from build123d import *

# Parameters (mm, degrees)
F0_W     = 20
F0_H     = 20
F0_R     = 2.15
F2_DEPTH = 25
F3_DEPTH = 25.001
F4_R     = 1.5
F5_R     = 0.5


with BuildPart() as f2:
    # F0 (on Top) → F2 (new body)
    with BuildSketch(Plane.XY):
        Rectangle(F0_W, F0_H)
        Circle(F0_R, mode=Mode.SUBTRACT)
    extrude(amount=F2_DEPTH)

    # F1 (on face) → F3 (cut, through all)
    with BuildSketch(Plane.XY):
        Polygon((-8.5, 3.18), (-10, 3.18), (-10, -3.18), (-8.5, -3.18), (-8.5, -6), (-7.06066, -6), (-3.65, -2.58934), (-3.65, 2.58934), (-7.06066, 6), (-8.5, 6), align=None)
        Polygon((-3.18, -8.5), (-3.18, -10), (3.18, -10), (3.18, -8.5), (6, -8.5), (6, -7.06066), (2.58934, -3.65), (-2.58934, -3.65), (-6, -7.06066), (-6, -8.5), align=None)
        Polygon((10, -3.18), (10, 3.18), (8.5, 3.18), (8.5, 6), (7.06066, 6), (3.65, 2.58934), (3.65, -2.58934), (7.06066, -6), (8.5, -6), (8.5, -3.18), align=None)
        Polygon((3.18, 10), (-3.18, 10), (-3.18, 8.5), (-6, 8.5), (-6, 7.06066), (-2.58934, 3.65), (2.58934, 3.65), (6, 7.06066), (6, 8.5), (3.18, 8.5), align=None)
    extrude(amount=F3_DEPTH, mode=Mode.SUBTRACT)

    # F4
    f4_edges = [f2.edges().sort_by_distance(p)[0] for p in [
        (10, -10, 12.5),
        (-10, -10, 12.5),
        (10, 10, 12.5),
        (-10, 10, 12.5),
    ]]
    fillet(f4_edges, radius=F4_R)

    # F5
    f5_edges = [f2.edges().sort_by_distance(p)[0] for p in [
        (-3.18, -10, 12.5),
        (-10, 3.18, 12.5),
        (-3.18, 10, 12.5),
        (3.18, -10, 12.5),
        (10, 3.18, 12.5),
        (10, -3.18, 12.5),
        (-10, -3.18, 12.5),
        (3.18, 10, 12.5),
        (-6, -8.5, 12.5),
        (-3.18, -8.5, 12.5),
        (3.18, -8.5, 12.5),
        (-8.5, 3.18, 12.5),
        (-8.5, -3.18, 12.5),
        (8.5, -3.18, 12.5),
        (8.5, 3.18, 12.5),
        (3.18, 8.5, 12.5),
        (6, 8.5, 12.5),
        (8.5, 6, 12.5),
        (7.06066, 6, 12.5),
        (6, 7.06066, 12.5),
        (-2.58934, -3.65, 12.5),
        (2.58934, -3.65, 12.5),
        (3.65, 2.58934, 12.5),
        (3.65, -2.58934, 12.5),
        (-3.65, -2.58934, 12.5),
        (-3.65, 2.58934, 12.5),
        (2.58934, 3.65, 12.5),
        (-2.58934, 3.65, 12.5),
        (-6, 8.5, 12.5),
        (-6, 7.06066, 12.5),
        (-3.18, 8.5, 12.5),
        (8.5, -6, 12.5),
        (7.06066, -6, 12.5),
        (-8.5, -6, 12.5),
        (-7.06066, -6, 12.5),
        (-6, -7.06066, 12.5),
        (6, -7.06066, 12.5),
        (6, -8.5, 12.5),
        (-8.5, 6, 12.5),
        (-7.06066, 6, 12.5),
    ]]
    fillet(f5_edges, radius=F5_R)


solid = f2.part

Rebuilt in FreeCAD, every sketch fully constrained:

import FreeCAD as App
import Part
import Sketcher
from FreeCAD import Vector


def edges_at(feature, points):
    """Names of the edges that pass closest to the given points."""
    edges = feature.Shape.Edges
    near = lambda p: min(range(len(edges)), key=lambda i: edges[i].distToShape(Part.Vertex(*p))[0])
    return sorted({f"Edge{near(p) + 1}" for p in points})


def add_polygon(sketch, points):
    """Adds a closed chain of lines whose ends are joined by coincident constraints."""
    first, n = sketch.GeometryCount, len(points)
    for a, b in zip(points, points[1:] + points[:1]):
        sketch.addGeometry(Part.LineSegment(App.Vector(*a, 0), App.Vector(*b, 0)), False)
    for i in range(n):
        sketch.addConstraint(Sketcher.Constraint("Coincident", first + i, 2, first + (i + 1) % n, 1))

doc = App.newDocument("Part")
params = doc.addObject("Spreadsheet::Sheet", "Params")
for row, (alias, value) in enumerate([
    ("sketch1_diameter", "4.3 mm"),
    ("sketch1_width", "20 mm"),
    ("pad1_length", "25 mm"),
    ("sketch2_width", "1.5 mm"),
    ("sketch2_width2", "6.36 mm"),
    ("fillet_radius", "1.5 mm"),
    ("fillet2_radius", "0.5 mm"),
], start=1):
    params.set(f"A{row}", alias)
    params.set(f"B{row}", "=" + value)
    params.setAlias(f"B{row}", alias)

body = doc.addObject("PartDesign::Body", "Body")

# Sketch on XY plane
sketch1 = body.newObject("Sketcher::SketchObject", "Sketch")
sketch1.AttachmentSupport = (doc.getObject("XY_Plane"), [""])
sketch1.MapMode = "FlatFace"
add_polygon(sketch1, [(-10, 10), (-10, -10), (10, -10), (10, 10)])  # lines 0-3
sketch1.addGeometry(Part.Circle(Vector(0, 0, 0), Vector(0, 0, 1), 2.1), False)  # 4
sketch1.addConstraint([
    Sketcher.Constraint("Vertical", 0),
    Sketcher.Constraint("Horizontal", 1),
    Sketcher.Constraint("Vertical", 2),
    Sketcher.Constraint("Horizontal", 3),
    Sketcher.Constraint("Coincident", 4, 3, -1, 1),
    Sketcher.Constraint("Symmetric", 0, 2, 2, 2, -1, 1),
    Sketcher.Constraint("Equal", 3, 0),
    Sketcher.Constraint("Diameter", 4, 4.3),
    Sketcher.Constraint("DistanceX", 1, 1, 1, 2, 20.0),
])
sketch1.setExpression("Constraints[11]", "Params.sketch1_diameter")
sketch1.setExpression("Constraints[12]", "Params.sketch1_width")
pad1 = body.newObject("PartDesign::Pad", "Pad")
pad1.Profile = sketch1
pad1.setExpression("Length", "Params.pad1_length")

# Sketch on XY plane
sketch2 = body.newObject("Sketcher::SketchObject", "Sketch001")
sketch2.AttachmentSupport = (doc.getObject("XY_Plane"), [""])
sketch2.MapMode = "FlatFace"
add_polygon(sketch2, [(-8.5, 3.2), (-10, 3.2), (-10, -3.2), (-8.5, -3.2), (-8.5, -6), (-7.1, -6), (-3.6, -2.6), (-3.6, 2.6), (-7.1, 6), (-8.5, 6)])  # lines 0-9
add_polygon(sketch2, [(-3.2, -8.5), (-3.2, -10), (3.2, -10), (3.2, -8.5), (6, -8.5), (6, -7.1), (2.6, -3.6), (-2.6, -3.6), (-6, -7.1), (-6, -8.5)])  # lines 10-19
add_polygon(sketch2, [(10, -3.2), (10, 3.2), (8.5, 3.2), (8.5, 6), (7.1, 6), (3.6, 2.6), (3.6, -2.6), (7.1, -6), (8.5, -6), (8.5, -3.2)])  # lines 20-29
add_polygon(sketch2, [(3.2, 10), (-3.2, 10), (-3.2, 8.5), (-6, 8.5), (-6, 7.1), (-2.6, 3.6), (2.6, 3.6), (6, 7.1), (6, 8.5), (3.2, 8.5)])  # lines 30-39
sketch2.addConstraint([
    Sketcher.Constraint("Horizontal", 0),
    Sketcher.Constraint("Vertical", 1),
    Sketcher.Constraint("Horizontal", 2),
    Sketcher.Constraint("Vertical", 3),
    Sketcher.Constraint("Horizontal", 4),
    Sketcher.Constraint("Vertical", 6),
    Sketcher.Constraint("Horizontal", 8),
    Sketcher.Constraint("Vertical", 9),
    Sketcher.Constraint("Vertical", 10),
    Sketcher.Constraint("Horizontal", 11),
    Sketcher.Constraint("Vertical", 12),
    Sketcher.Constraint("Horizontal", 13),
    Sketcher.Constraint("Vertical", 14),
    Sketcher.Constraint("Horizontal", 16),
    Sketcher.Constraint("Vertical", 18),
    Sketcher.Constraint("Horizontal", 19),
    Sketcher.Constraint("Vertical", 20),
    Sketcher.Constraint("Horizontal", 21),
    Sketcher.Constraint("Vertical", 22),
    Sketcher.Constraint("Horizontal", 23),
    Sketcher.Constraint("Vertical", 25),
    Sketcher.Constraint("Horizontal", 27),
    Sketcher.Constraint("Vertical", 28),
    Sketcher.Constraint("Horizontal", 29),
    Sketcher.Constraint("Horizontal", 30),
    Sketcher.Constraint("Vertical", 31),
    Sketcher.Constraint("Horizontal", 32),
    Sketcher.Constraint("Vertical", 33),
    Sketcher.Constraint("Horizontal", 35),
    Sketcher.Constraint("Vertical", 37),
    Sketcher.Constraint("Horizontal", 38),
    Sketcher.Constraint("Vertical", 39),
    Sketcher.Constraint("Symmetric", 1, 2, 20, 2, -1, 1),
    Sketcher.Constraint("Symmetric", 3, 2, 22, 2, -1, 1),
    Sketcher.Constraint("Symmetric", 5, 2, 24, 2, -1, 1),
    Sketcher.Constraint("Symmetric", 7, 2, 26, 2, -1, 1),
    Sketcher.Constraint("Symmetric", 9, 2, 28, 2, -1, 1),
    Sketcher.Constraint("Symmetric", 11, 2, 30, 2, -1, 1),
    Sketcher.Constraint("Symmetric", 13, 2, 32, 2, -1, 1),
    Sketcher.Constraint("Symmetric", 15, 2, 34, 2, -1, 1),
    Sketcher.Constraint("Symmetric", 17, 2, 36, 2, -1, 1),
    Sketcher.Constraint("Symmetric", 19, 2, 38, 2, -1, 1),
    Sketcher.Constraint("Symmetric", 14, 2, 17, 2, -2),
    Sketcher.Constraint("Symmetric", 12, 2, 19, 2, -2),
    Sketcher.Constraint("Symmetric", 9, 2, 21, 2, -2),
    Sketcher.Constraint("Symmetric", 7, 2, 23, 2, -2),
    Sketcher.Constraint("Perpendicular", 5, 7),
    Sketcher.Constraint("Parallel", 7, 15),
    Sketcher.Constraint("Perpendicular", 15, 17),
    Sketcher.Constraint("Parallel", 17, 24),
    Sketcher.Constraint("Perpendicular", 24, 26),
    Sketcher.Constraint("Parallel", 26, 34),
    Sketcher.Constraint("Perpendicular", 34, 36),
    Sketcher.Constraint("Horizontal", 6, 2, 24, 2),
    Sketcher.Constraint("Equal", 30, 1),
    Sketcher.Constraint("Equal", 38, 3),
    Sketcher.Constraint("Equal", 35, 6),
    Sketcher.Constraint("Equal", 29, 10),
    Sketcher.Constraint("Equal", 27, 14),
    Sketcher.Constraint("DistanceX", 0, 2, 0, 1, 1.5),
    Sketcher.Constraint("DistanceX", 0, 2, -1, 1, 10.0),
    Sketcher.Constraint("DistanceY", 3, 2, -1, 1, 6.0),
    Sketcher.Constraint("DistanceY", 10, 2, -1, 1, 10.0),
    Sketcher.Constraint("DistanceX", 11, 1, 11, 2, 6.36),
    Sketcher.Constraint("DistanceX", 5, 2, -1, 1, 3.65),
    Sketcher.Constraint("Distance", 5, 4.823402),
])
sketch2.setExpression("Constraints[99]", "Params.sketch2_width")
sketch2.setExpression("Constraints[103]", "Params.sketch2_width2")
pocket1 = body.newObject("PartDesign::Pocket", "Pocket")
pocket1.Profile = sketch2
pocket1.Type = "ThroughAll"
pocket1.Reversed = True
doc.recompute()

fillet = body.newObject("PartDesign::Fillet", "Fillet")
fillet.Base = (pocket1, edges_at(pocket1, [
    (10, -10, 12.5),
    (-10, -10, 12.5),
    (10, 10, 12.5),
    (-10, 10, 12.5),
]))
fillet.setExpression("Radius", "Params.fillet_radius")
doc.recompute()

fillet2 = body.newObject("PartDesign::Fillet", "Fillet001")
fillet2.Base = (fillet, edges_at(fillet, [
    (-3.18, -10, 12.5),
    (-10, 3.18, 12.5),
    (-3.18, 10, 12.5),
    (3.18, -10, 12.5),
    (10, 3.18, 12.5),
    (10, -3.18, 12.5),
    (-10, -3.18, 12.5),
    (3.18, 10, 12.5),
    (-6, -8.5, 12.5),
    (-3.18, -8.5, 12.5),
    (3.18, -8.5, 12.5),
    (-8.5, 3.18, 12.5),
    (-8.5, -3.18, 12.5),
    (8.5, -3.18, 12.5),
    (8.5, 3.18, 12.5),
    (3.18, 8.5, 12.5),
    (6, 8.5, 12.5),
    (8.5, 6, 12.5),
    (7.061, 6, 12.5),
    (6, 7.061, 12.5),
    (-2.589, -3.65, 12.5),
    (2.589, -3.65, 12.5),
    (3.65, 2.589, 12.5),
    (3.65, -2.589, 12.5),
    (-3.65, -2.589, 12.5),
    (-3.65, 2.589, 12.5),
    (2.589, 3.65, 12.5),
    (-2.589, 3.65, 12.5),
    (-6, 8.5, 12.5),
    (-6, 7.061, 12.5),
    (-3.18, 8.5, 12.5),
    (8.5, -6, 12.5),
    (7.061, -6, 12.5),
    (-8.5, -6, 12.5),
    (-7.061, -6, 12.5),
    (-6, -7.061, 12.5),
    (6, -7.061, 12.5),
    (6, -8.5, 12.5),
    (-8.5, 6, 12.5),
    (-7.061, 6, 12.5),
]))
fillet2.setExpression("Radius", "Params.fillet2_radius")

doc.recompute()
